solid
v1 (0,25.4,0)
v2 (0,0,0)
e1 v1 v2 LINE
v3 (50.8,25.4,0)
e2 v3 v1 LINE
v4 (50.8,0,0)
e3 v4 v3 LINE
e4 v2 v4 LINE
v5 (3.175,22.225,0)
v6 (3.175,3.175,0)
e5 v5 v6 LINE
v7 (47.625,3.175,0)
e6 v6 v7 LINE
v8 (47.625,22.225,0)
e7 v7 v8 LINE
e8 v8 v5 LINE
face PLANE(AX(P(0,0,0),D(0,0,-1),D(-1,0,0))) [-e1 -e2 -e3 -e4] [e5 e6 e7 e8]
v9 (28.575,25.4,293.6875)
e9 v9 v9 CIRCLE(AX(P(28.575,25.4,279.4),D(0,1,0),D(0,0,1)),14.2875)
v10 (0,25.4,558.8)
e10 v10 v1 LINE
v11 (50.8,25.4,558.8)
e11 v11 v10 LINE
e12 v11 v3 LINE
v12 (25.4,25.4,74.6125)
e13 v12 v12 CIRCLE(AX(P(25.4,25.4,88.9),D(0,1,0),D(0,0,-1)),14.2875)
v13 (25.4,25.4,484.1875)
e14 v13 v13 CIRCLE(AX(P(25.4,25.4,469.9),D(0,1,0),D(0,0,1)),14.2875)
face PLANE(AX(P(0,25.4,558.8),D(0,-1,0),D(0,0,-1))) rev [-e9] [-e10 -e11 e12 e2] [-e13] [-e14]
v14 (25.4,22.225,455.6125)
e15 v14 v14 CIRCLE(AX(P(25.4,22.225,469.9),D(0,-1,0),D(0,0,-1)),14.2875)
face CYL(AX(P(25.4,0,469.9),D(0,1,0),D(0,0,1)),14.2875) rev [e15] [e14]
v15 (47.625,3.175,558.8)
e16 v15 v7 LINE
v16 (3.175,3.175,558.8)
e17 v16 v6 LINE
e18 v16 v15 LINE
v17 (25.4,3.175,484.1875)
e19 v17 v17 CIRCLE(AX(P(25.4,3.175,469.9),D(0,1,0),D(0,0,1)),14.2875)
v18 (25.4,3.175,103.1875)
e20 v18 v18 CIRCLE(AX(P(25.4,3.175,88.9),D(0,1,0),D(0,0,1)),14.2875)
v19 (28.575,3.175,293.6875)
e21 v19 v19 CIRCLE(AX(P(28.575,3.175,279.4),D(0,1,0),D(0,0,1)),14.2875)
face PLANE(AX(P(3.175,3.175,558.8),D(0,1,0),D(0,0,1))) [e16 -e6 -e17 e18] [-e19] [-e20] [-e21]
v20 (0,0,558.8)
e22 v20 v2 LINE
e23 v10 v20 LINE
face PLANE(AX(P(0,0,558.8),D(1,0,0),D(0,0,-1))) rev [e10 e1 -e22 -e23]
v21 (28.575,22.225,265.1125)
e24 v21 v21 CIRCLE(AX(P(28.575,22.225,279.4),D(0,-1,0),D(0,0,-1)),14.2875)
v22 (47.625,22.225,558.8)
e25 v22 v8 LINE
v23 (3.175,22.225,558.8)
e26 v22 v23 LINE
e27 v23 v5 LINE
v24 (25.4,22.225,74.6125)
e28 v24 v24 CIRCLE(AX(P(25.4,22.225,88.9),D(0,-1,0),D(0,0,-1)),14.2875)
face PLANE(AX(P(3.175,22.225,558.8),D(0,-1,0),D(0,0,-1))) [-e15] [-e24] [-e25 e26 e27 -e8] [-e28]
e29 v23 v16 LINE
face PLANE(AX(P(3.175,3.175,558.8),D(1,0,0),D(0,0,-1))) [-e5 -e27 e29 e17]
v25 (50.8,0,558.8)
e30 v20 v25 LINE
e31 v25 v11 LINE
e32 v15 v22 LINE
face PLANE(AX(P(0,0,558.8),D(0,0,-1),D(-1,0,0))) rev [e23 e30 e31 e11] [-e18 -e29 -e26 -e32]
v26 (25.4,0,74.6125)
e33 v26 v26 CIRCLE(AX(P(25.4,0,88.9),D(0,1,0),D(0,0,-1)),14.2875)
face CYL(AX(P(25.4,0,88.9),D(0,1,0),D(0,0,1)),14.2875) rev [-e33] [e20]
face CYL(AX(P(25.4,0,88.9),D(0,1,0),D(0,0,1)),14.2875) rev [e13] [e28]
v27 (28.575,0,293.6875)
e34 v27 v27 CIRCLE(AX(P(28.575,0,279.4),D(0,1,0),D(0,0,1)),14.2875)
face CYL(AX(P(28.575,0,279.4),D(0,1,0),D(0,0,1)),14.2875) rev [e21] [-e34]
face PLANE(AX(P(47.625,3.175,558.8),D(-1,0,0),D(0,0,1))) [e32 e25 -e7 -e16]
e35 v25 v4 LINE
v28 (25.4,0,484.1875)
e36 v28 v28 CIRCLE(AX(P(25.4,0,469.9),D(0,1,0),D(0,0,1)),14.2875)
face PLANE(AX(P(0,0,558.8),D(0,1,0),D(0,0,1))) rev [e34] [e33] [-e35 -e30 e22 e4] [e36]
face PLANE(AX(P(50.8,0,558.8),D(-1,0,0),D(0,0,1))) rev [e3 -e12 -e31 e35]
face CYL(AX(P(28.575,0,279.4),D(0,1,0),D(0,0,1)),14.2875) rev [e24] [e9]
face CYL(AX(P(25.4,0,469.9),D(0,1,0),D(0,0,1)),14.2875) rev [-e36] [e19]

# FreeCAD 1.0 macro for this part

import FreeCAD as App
import Part
import Sketcher
from FreeCAD import Vector
Q = App.Units.Quantity


def add_polygon(sketch, points):
    """Adds a closed chain of lines whose ends are joined by coincident constraints."""
    first, n = sketch.GeometryCount, len(points)
    for a, b in zip(points, points[1:] + points[:1]):
        sketch.addGeometry(Part.LineSegment(App.Vector(*a, 0), App.Vector(*b, 0)), False)
    for i in range(n):
        sketch.addConstraint(Sketcher.Constraint("Coincident", first + i, 2, first + (i + 1) % n, 1))

doc = App.newDocument("Part")
body = doc.addObject("PartDesign::Body", "Body")

# Sketch on XY plane
sketch1 = doc.addObject("Sketcher::SketchObject", "Sketch")
body.addObject(sketch1)
sketch1.AttachmentSupport = (doc.XY_Plane, [""])
sketch1.MapMode = "FlatFace"
add_polygon(sketch1, [(0, 25), (0, 0), (51, 0), (51, 25)])  # lines 0-3
add_polygon(sketch1, [(48, 3), (3, 3), (3, 22), (48, 22)])  # lines 4-7
sketch1.addConstraint([
    Sketcher.Constraint("Vertical", 0),
    Sketcher.Constraint("Horizontal", 1),
    Sketcher.Constraint("Vertical", 2),
    Sketcher.Constraint("Horizontal", 3),
    Sketcher.Constraint("Horizontal", 4),
    Sketcher.Constraint("Vertical", 5),
    Sketcher.Constraint("Horizontal", 6),
    Sketcher.Constraint("Vertical", 7),
    Sketcher.Constraint("Coincident", 0, 2, -1, 1),
    Sketcher.Constraint("DistanceX", 1, 1, 1, 2, Q("2 in")),
    Sketcher.Constraint("DistanceY", 0, 2, 0, 1, Q("1 in")),
    Sketcher.Constraint("DistanceX", 4, 2, 4, 1, Q("1.75 in")),
    Sketcher.Constraint("DistanceY", 5, 1, 5, 2, Q("0.75 in")),
    Sketcher.Constraint("DistanceX", -1, 1, 4, 2, Q("0.125 in")),
    Sketcher.Constraint("DistanceY", -1, 1, 4, 2, Q("0.125 in")),
])
pad1 = doc.addObject("PartDesign::Pad", "Pad")
body.addObject(pad1)
pad1.Profile = sketch1
pad1.Length = Q("22 in")

# Sketch on XZ plane
sketch2 = doc.addObject("Sketcher::SketchObject", "Sketch001")
body.addObject(sketch2)
sketch2.AttachmentSupport = (doc.XZ_Plane, [""])
sketch2.MapMode = "FlatFace"
sketch2.AttachmentOffset = App.Placement(Vector(0, 0, -1 * 25.4), App.Rotation())
sketch2.addGeometry([
    Part.Circle(Vector(29, 279, 0), Vector(0, 0, 1), 14),
    Part.Circle(Vector(25, 470, 0), Vector(0, 0, 1), 14),
    Part.Circle(Vector(25, 89, 0), Vector(0, 0, 1), 14),
], False)
sketch2.addConstraint([
    Sketcher.Constraint("Equal", 0, 1),
    Sketcher.Constraint("Equal", 1, 2),
    Sketcher.Constraint("Vertical", 1, 3, 2, 3),
    Sketcher.Constraint("Diameter", 0, Q("1.125 in")),
    Sketcher.Constraint("DistanceY", -1, 1, 0, 3, Q("11 in")),
    Sketcher.Constraint("DistanceX", -1, 1, 1, 3, Q("1 in")),
    Sketcher.Constraint("DistanceY", 2, 3, 1, 3, Q("15 in")),
    Sketcher.Constraint("DistanceY", -1, 1, 1, 3, Q("18.5 in")),
    Sketcher.Constraint("DistanceX", -1, 1, 0, 3, Q("1.125 in")),
])
pocket1 = doc.addObject("PartDesign::Pocket", "Pocket")
body.addObject(pocket1)
pocket1.Profile = sketch2
pocket1.Type = "ThroughAll"
pocket1.Reversed = True

doc.recompute()
